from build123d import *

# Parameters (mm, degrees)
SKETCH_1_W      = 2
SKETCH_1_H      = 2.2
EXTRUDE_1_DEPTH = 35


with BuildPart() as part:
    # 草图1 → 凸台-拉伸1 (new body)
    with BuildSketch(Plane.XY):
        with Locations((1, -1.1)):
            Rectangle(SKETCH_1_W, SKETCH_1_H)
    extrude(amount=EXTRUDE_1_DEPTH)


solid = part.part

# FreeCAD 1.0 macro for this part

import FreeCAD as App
import Part
import Sketcher


def add_polygon(sketch, points):
    """Adds a closed chain of lines whose ends are joined by coincident constraints."""
    first, n = sketch.GeometryCount, len(points)
    for a, b in zip(points, points[1:] + points[:1]):
        sketch.addGeometry(Part.LineSegment(App.Vector(*a, 0), App.Vector(*b, 0)), False)
    for i in range(n):
        sketch.addConstraint(Sketcher.Constraint("Coincident", first + i, 2, first + (i + 1) % n, 1))

doc = App.newDocument("Part")
params = doc.addObject("Spreadsheet::Sheet", "Params")
for row, (alias, value) in enumerate([
    ("sketch1_width", "2 mm"),
    ("sketch1_height", "2.2 mm"),
    ("pad1_length", "35 mm"),
], start=1):
    params.set(f"A{row}", alias)
    params.set(f"B{row}", "=" + value)
    params.setAlias(f"B{row}", alias)

body = doc.addObject("PartDesign::Body", "Body")

sketch1 = body.newObject("Sketcher::SketchObject", "Sketch")
sketch1.AttachmentSupport = (doc.getObject("XY_Plane"), [""])
sketch1.MapMode = "FlatFace"
add_polygon(sketch1, [(0, 0), (0, -2.2), (2, -2.2), (2, 0)])
sketch1.addConstraint(Sketcher.Constraint("Vertical", 0))
sketch1.addConstraint(Sketcher.Constraint("Horizontal", 1))
sketch1.addConstraint(Sketcher.Constraint("Vertical", 2))
sketch1.addConstraint(Sketcher.Constraint("Horizontal", 3))
sketch1.addConstraint(Sketcher.Constraint("Coincident", 3, 2, -1, 1))
sketch1.addConstraint(Sketcher.Constraint("DistanceX", 1, 1, 1, 2, 2.0))
sketch1.addConstraint(Sketcher.Constraint("DistanceY", 0, 2, 0, 1, 2.2))
sketch1.setExpression("Constraints[9]", "Params.sketch1_width")
sketch1.setExpression("Constraints[10]", "Params.sketch1_height")
pad1 = body.newObject("PartDesign::Pad", "Pad")
pad1.Profile = sketch1
pad1.setExpression("Length", "Params.pad1_length")

doc.recompute()
